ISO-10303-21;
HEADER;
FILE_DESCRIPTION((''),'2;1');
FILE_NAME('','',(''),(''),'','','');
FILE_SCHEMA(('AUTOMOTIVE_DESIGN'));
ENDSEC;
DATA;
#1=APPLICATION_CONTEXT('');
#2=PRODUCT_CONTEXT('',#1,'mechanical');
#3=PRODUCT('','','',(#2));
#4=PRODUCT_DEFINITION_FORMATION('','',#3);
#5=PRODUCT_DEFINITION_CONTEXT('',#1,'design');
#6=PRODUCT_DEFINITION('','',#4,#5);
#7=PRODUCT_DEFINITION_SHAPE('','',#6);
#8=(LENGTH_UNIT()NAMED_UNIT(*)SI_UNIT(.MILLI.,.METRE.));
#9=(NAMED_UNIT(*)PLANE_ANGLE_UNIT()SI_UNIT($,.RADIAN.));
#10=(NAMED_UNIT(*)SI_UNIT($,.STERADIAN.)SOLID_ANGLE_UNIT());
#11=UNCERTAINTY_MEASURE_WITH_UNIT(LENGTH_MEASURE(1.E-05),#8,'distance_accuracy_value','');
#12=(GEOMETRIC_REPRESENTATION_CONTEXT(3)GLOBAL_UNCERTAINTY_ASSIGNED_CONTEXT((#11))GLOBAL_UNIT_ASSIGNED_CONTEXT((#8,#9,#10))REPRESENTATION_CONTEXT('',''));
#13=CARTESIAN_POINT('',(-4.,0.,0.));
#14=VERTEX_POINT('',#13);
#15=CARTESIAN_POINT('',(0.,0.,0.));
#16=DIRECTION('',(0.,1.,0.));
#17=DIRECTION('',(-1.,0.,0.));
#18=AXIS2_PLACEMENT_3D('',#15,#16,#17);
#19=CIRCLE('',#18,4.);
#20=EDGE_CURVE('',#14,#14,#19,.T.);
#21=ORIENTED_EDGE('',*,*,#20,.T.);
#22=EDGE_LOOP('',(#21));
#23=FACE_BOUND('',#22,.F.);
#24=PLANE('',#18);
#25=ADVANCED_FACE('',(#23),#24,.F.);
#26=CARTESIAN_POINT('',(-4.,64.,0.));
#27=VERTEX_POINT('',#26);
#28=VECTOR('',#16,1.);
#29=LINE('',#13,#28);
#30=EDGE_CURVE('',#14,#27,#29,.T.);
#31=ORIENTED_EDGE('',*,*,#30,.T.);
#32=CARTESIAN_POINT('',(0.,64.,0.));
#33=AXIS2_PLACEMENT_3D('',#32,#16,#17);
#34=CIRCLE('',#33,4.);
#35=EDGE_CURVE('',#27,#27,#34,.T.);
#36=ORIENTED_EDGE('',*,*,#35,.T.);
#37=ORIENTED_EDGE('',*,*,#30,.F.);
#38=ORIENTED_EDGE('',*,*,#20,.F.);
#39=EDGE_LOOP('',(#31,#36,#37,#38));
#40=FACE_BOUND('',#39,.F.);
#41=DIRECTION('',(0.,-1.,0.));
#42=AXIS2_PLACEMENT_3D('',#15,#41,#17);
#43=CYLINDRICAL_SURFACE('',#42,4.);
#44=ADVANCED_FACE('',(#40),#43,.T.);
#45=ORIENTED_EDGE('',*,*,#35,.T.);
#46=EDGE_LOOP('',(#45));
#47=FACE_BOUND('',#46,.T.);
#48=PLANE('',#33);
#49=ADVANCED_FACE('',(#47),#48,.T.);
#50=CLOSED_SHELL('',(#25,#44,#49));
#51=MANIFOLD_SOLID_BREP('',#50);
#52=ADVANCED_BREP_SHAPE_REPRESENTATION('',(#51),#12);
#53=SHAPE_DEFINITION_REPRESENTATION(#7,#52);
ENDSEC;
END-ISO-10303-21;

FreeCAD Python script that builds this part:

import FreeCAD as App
import Part
import Sketcher
from FreeCAD import Vector
Q = App.Units.Quantity

doc = App.newDocument("Part")
body = doc.addObject("PartDesign::Body", "Body")

sketch1 = doc.addObject("Sketcher::SketchObject", "Sketch")
body.addObject(sketch1)
sketch1.AttachmentSupport = (doc.XZ_Plane, [""])
sketch1.MapMode = "FlatFace"
sketch1.addGeometry(Part.Circle(Vector(0, 0, 0), Vector(0, 0, 1), 4), False)
sketch1.addConstraint([
    Sketcher.Constraint("Coincident", 0, 3, -1, 1),
    Sketcher.Constraint("Diameter", 0, Q("8 mm")),
])
pad1 = doc.addObject("PartDesign::Pad", "Pad")
body.addObject(pad1)
pad1.Profile = sketch1
pad1.Length = 64
pad1.Reversed = True

doc.recompute()
